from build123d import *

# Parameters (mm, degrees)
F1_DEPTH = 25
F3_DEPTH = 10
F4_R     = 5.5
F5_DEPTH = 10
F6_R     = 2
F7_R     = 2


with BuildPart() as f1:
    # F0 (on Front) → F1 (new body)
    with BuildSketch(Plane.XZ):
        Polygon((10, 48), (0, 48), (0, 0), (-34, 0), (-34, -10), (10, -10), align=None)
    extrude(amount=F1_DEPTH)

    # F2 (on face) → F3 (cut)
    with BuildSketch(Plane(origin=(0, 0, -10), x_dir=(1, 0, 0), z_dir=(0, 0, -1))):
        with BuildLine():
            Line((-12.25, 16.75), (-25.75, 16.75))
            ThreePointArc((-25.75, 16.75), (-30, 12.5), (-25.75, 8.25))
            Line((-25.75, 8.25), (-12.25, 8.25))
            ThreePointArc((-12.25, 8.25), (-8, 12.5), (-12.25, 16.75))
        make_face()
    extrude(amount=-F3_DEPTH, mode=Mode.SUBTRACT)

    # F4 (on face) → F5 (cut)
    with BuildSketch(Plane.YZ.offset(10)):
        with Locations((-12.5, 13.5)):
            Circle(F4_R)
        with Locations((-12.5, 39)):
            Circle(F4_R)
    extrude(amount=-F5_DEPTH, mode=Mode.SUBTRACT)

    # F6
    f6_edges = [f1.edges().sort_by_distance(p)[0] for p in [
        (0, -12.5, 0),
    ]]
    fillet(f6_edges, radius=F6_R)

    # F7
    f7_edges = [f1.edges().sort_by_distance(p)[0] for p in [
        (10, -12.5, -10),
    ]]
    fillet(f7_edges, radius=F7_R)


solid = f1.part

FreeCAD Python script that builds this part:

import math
import FreeCAD as App
import Part
import Sketcher

V = App.Vector


def edges_at(feature, points):
    """Names of the edges that pass closest to the given points."""
    edges = feature.Shape.Edges
    near = lambda p: min(range(len(edges)), key=lambda i: edges[i].distToShape(Part.Vertex(*p))[0])
    return sorted({f"Edge{near(p) + 1}" for p in points})

doc = App.newDocument("Part")
body = doc.addObject("PartDesign::Body", "Body")

# Sketch on XZ plane
sketch1 = body.newObject("Sketcher::SketchObject", "Sketch")
sketch1.AttachmentSupport = (doc.getObject("XZ_Plane"), [""])
sketch1.MapMode = "FlatFace"
sketch1.addGeometry([
    Part.LineSegment(V(10, 48, 0), V(0, 48, 0)),  # 0
    Part.LineSegment(V(0, 48, 0), V(0, 0, 0)),  # 1
    Part.LineSegment(V(0, 0, 0), V(-34, 0, 0)),  # 2
    Part.LineSegment(V(-34, 0, 0), V(-34, -10, 0)),  # 3
    Part.LineSegment(V(-34, -10, 0), V(10, -10, 0)),  # 4
    Part.LineSegment(V(10, -10, 0), V(10, 48, 0)),  # 5
], False)
sketch1.addConstraint([
    Sketcher.Constraint("Coincident", 0, 2, 1, 1),
    Sketcher.Constraint("Coincident", 1, 2, 2, 1),
    Sketcher.Constraint("Coincident", 2, 2, 3, 1),
    Sketcher.Constraint("Coincident", 3, 2, 4, 1),
    Sketcher.Constraint("Coincident", 4, 2, 5, 1),
    Sketcher.Constraint("Coincident", 5, 2, 0, 1),
    Sketcher.Constraint("Horizontal", 0),
    Sketcher.Constraint("Vertical", 1),
    Sketcher.Constraint("Horizontal", 2),
    Sketcher.Constraint("Vertical", 3),
    Sketcher.Constraint("Horizontal", 4),
    Sketcher.Constraint("Vertical", 5),
    Sketcher.Constraint("Coincident", 1, 2, -1, 1),
    Sketcher.Constraint("Equal", 0, 3),
    Sketcher.Constraint("DistanceX", 0, 2, 0, 1, 10.0),
    Sketcher.Constraint("DistanceX", 2, 2, 2, 1, 34.0),
    Sketcher.Constraint("DistanceY", 1, 2, 1, 1, 48.0),
])
pad1 = body.newObject("PartDesign::Pad", "Pad")
pad1.Profile = sketch1
pad1.Length = 25

# Sketch on XY plane
sketch2 = body.newObject("Sketcher::SketchObject", "Sketch001")
sketch2.AttachmentSupport = (doc.getObject("XY_Plane"), [""])
sketch2.MapMode = "FlatFace"
sketch2.AttachmentOffset = App.Placement(V(0, 0, -10), App.Rotation())
sketch2.addGeometry([
    Part.LineSegment(V(-12.2, -16.8, 0), V(-25.8, -16.8, 0)),
    Part.ArcOfCircle(Part.Circle(V(-25.8, -12.5, 0), V(0, 0, 1), 4.2), math.radians(90), math.radians(270)),
    Part.LineSegment(V(-25.8, -8.2, 0), V(-12.2, -8.2, 0)),
    Part.ArcOfCircle(Part.Circle(V(-12.2, -12.5, 0), V(0, 0, 1), 4.2), math.radians(-90), math.radians(90)),
], False)
sketch2.addConstraint([
    Sketcher.Constraint("Tangent", 0, 2, 1, 2),
    Sketcher.Constraint("Tangent", 1, 1, 2, 1),
    Sketcher.Constraint("Tangent", 2, 2, 3, 2),
    Sketcher.Constraint("Tangent", 3, 1, 0, 1),
    Sketcher.Constraint("Horizontal", 0),
    Sketcher.Constraint("Horizontal", 2),
    Sketcher.Constraint("Radius", 1, 4.25),
    Sketcher.Constraint("DistanceX", 0, 2, 0, 1, 13.5),
    Sketcher.Constraint("DistanceY", 1, 3, -1, 1, 12.5),
    Sketcher.Constraint("DistanceX", 1, 3, -1, 1, 25.75),
])
pocket1 = body.newObject("PartDesign::Pocket", "Pocket")
pocket1.Profile = sketch2
pocket1.Length = 10
pocket1.Reversed = True

# Sketch on YZ plane
sketch3 = body.newObject("Sketcher::SketchObject", "Sketch002")
sketch3.AttachmentSupport = (doc.getObject("YZ_Plane"), [""])
sketch3.MapMode = "FlatFace"
sketch3.AttachmentOffset = App.Placement(V(0, 0, 10), App.Rotation())
sketch3.addGeometry([
    Part.Circle(V(-12, 14, 0), V(0, 0, 1), 6),
    Part.Circle(V(-12, 39, 0), V(0, 0, 1), 6),
], False)
sketch3.addConstraint([
    Sketcher.Constraint("Equal", 0, 1),
    Sketcher.Constraint("Vertical", 0, 3, 1, 3),
    Sketcher.Constraint("Diameter", 0, 11.0),
    Sketcher.Constraint("DistanceY", -1, 1, 1, 3, 39.0),
    Sketcher.Constraint("DistanceX", 0, 3, -1, 1, 12.5),
    Sketcher.Constraint("DistanceY", -1, 1, 0, 3, 13.5),
])
pocket2 = body.newObject("PartDesign::Pocket", "Pocket001")
pocket2.Profile = sketch3
pocket2.Length = 10
doc.recompute()

fillet = body.newObject("PartDesign::Fillet", "Fillet")
fillet.Base = (pocket2, edges_at(pocket2, [(0, -12.5, 0)]))
fillet.Radius = 2
doc.recompute()

fillet2 = body.newObject("PartDesign::Fillet", "Fillet001")
fillet2.Base = (fillet, edges_at(fillet, [(10, -12.5, -10)]))
fillet2.Radius = 2

doc.recompute()
